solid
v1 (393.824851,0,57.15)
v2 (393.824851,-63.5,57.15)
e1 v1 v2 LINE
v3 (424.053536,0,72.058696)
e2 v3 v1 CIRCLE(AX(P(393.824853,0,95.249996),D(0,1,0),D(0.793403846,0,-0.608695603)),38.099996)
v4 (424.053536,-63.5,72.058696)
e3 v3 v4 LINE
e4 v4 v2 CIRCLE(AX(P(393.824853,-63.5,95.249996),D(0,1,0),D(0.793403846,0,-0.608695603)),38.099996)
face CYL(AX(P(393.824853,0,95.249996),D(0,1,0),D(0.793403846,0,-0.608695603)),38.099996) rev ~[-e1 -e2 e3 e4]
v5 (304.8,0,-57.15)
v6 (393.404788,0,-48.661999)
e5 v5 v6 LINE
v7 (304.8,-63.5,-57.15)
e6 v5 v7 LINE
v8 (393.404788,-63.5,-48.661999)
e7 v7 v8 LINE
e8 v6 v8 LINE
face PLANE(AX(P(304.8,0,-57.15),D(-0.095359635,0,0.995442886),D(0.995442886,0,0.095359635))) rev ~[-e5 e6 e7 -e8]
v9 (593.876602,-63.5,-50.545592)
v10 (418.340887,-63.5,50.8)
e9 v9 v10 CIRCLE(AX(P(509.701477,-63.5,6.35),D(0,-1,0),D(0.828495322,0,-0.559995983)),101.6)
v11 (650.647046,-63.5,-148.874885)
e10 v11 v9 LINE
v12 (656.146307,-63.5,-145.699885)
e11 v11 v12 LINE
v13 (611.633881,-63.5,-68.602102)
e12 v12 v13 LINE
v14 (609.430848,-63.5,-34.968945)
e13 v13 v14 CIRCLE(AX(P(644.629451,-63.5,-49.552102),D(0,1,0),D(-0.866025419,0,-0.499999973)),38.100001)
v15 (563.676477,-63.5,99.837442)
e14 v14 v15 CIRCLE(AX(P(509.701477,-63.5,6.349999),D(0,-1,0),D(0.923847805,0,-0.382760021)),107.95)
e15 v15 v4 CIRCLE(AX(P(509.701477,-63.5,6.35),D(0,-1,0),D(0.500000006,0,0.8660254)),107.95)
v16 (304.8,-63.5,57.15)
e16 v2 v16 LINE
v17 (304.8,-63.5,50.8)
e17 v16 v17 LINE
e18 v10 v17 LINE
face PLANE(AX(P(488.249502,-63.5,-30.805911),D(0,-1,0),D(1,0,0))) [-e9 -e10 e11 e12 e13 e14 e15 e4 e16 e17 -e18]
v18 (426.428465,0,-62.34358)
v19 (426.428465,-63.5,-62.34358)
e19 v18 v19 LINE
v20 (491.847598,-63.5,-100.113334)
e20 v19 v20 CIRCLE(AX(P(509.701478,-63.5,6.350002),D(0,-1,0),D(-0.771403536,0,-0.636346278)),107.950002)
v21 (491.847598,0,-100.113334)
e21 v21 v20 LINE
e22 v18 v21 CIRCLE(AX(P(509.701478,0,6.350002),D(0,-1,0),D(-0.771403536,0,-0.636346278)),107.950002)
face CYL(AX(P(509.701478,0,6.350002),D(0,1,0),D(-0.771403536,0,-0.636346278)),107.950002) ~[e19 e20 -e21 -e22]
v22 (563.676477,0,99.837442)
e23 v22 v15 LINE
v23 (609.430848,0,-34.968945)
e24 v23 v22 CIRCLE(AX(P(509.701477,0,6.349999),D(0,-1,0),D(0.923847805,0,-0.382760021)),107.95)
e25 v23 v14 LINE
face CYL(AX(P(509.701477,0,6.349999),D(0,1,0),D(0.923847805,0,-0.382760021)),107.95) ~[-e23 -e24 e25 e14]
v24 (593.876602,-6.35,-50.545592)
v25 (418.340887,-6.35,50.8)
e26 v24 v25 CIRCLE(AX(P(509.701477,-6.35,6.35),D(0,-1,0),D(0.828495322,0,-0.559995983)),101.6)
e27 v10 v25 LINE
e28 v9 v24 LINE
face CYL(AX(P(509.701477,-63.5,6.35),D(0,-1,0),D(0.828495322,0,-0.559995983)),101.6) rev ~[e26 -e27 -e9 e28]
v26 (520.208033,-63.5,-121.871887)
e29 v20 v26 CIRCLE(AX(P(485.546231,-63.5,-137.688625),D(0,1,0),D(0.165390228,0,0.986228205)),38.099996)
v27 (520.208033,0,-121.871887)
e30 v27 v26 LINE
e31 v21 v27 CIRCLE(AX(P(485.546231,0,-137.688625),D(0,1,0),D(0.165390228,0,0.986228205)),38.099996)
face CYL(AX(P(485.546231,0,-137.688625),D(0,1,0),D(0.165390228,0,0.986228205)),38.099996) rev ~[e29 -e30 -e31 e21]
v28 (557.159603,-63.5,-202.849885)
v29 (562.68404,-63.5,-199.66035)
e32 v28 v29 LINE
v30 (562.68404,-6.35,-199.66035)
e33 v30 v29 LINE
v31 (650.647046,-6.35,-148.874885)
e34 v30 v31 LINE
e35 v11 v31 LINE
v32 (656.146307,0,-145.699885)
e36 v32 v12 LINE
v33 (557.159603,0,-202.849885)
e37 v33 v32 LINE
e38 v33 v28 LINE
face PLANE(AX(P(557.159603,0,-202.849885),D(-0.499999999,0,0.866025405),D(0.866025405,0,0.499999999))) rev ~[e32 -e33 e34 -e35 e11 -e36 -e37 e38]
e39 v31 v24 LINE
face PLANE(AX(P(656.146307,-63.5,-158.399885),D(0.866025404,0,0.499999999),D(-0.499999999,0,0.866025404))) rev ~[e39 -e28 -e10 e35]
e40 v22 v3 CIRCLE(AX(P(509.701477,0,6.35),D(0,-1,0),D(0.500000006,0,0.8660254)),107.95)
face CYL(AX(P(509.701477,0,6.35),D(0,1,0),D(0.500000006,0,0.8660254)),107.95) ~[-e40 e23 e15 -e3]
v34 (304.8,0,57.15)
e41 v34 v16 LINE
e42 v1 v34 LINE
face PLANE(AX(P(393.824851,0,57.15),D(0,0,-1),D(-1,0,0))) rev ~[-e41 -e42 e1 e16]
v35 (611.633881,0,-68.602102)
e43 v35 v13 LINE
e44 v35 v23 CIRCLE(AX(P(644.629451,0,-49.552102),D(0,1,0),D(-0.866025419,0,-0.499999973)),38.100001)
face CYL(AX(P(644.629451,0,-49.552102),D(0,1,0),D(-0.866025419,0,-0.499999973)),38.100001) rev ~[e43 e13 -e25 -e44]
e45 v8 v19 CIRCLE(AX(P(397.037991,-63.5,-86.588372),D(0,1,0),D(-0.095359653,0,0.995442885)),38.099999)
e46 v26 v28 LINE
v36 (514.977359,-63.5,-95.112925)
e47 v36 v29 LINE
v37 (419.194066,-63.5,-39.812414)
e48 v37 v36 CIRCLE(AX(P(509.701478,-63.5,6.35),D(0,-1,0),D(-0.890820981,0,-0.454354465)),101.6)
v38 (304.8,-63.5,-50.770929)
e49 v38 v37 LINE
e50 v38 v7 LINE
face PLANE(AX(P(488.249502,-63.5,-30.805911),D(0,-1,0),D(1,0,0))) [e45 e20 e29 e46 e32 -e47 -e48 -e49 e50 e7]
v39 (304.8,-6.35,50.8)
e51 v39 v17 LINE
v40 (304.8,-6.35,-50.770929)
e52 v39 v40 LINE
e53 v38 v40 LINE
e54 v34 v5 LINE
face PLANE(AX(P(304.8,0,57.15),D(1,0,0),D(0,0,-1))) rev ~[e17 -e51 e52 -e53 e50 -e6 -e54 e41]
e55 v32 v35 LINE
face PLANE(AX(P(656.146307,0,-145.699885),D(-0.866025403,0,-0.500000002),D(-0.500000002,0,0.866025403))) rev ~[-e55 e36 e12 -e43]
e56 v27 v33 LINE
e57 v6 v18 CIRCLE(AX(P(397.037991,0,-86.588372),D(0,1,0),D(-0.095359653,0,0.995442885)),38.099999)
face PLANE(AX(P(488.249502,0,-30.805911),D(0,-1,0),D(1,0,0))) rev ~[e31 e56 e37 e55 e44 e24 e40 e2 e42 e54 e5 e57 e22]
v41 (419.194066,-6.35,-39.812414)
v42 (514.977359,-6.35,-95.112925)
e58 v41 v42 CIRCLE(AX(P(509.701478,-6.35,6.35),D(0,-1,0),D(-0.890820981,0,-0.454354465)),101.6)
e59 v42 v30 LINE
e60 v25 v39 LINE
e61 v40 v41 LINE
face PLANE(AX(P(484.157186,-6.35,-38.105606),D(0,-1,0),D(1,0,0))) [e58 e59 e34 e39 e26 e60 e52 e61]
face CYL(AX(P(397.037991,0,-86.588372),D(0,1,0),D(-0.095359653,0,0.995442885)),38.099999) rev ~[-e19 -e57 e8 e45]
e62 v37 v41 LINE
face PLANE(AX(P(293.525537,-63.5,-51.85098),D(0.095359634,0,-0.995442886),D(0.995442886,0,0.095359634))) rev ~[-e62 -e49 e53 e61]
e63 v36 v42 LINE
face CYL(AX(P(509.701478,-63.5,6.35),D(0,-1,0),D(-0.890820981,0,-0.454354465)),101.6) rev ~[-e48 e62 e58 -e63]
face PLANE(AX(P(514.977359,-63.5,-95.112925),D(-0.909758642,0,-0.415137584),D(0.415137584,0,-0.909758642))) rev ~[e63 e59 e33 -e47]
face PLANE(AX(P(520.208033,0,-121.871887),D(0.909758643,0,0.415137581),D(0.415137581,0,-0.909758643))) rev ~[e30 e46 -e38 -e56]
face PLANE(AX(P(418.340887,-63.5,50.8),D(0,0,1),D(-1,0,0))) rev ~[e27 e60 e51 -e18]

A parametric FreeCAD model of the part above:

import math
import FreeCAD as App
import Part
import Sketcher

V = App.Vector
Q = App.Units.Quantity

doc = App.newDocument("Part")
params = doc.addObject("Spreadsheet::Sheet", "Params")
for row, (alias, value) in enumerate([
    ("sketch1_radius", "1.5 in"),
    ("sketch1_radius2", "1.4999999 in"),
    ("sketch1_radius3", "1.5000001 in"),
    ("sketch1_radius4", "4.2500001 in"),
    ("sketch1_radius5", "4.25 in"),
    ("pad1_length", "2.5 in"),
    ("sketch2_radius", "4 in"),
    ("pad2_length", "2.25 in"),
], start=1):
    params.set(f"A{row}", alias)
    params.set(f"B{row}", "=" + value)
    params.setAlias(f"B{row}", alias)

body = doc.addObject("PartDesign::Body", "Body")

sketch1 = body.newObject("Sketcher::SketchObject", "Sketch")
sketch1.AttachmentSupport = (doc.getObject("XZ_Plane"), [""])
sketch1.MapMode = "FlatFace"
sketch1.addGeometry([
    Part.LineSegment(V(394, 57, 0), V(305, 57, 0)),
    Part.LineSegment(V(305, 57, 0), V(305, -57, 0)),
    Part.LineSegment(V(305, -57, 0), V(393, -49, 0)),
    Part.ArcOfCircle(Part.Circle(V(397, -87, 0), V(0, 0, 1), 38), math.radians(40), math.radians(95)),
    Part.ArcOfCircle(Part.Circle(V(510, 6, 0), V(0, 0, 1), 108), math.radians(-140), math.radians(-100)),
    Part.ArcOfCircle(Part.Circle(V(486, -138, 0), V(0, 0, 1), 38), math.radians(25), math.radians(80)),
    Part.LineSegment(V(520, -122, 0), V(557, -203, 0)),
    Part.LineSegment(V(557, -203, 0), V(656, -146, 0)),
    Part.LineSegment(V(656, -146, 0), V(612, -69, 0)),
    Part.ArcOfCircle(Part.Circle(V(645, -50, 0), V(0, 0, 1), 38), math.radians(157), math.radians(210)),
    Part.ArcOfCircle(Part.Circle(V(510, 6, 0), V(0, 0, 1), 108), math.radians(-23), math.radians(60)),
    Part.ArcOfCircle(Part.Circle(V(510, 6, 0), V(0, 0, 1), 108), math.radians(60), math.radians(143)),
    Part.ArcOfCircle(Part.Circle(V(394, 95, 0), V(0, 0, 1), 38), math.radians(-90), math.radians(-37)),
], False)
sketch1.addConstraint([
    Sketcher.Constraint("Coincident", 0, 2, 1, 1),
    Sketcher.Constraint("Coincident", 1, 2, 2, 1),
    Sketcher.Constraint("Tangent", 2, 2, 3, 2),
    Sketcher.Constraint("Tangent", 3, 1, 4, 1),
    Sketcher.Constraint("Tangent", 4, 2, 5, 2),
    Sketcher.Constraint("Tangent", 5, 1, 6, 1),
    Sketcher.Constraint("Coincident", 6, 2, 7, 1),
    Sketcher.Constraint("Coincident", 7, 2, 8, 1),
    Sketcher.Constraint("Tangent", 8, 2, 9, 2),
    Sketcher.Constraint("Tangent", 9, 1, 10, 1),
    Sketcher.Constraint("Tangent", 10, 2, 11, 1),
    Sketcher.Constraint("Tangent", 11, 2, 12, 2),
    Sketcher.Constraint("Tangent", 12, 1, 0, 1),
    Sketcher.Constraint("Horizontal", 0),
    Sketcher.Constraint("Vertical", 1),
    Sketcher.Constraint("Coincident", 10, 3, 4, 3),
    Sketcher.Constraint("Equal", 10, 11),
    Sketcher.Constraint("Equal", 5, 12),
    Sketcher.Constraint("Perpendicular", 7, 8),
    Sketcher.Constraint("Equal", 2, 6),
    Sketcher.Constraint("Radius", 3, Q("1.5 in")),
    Sketcher.Constraint("Radius", 5, Q("1.4999999 in")),
    Sketcher.Constraint("Radius", 9, Q("1.5000001 in")),
    Sketcher.Constraint("Radius", 4, Q("4.2500001 in")),
    Sketcher.Constraint("Radius", 10, Q("4.25 in")),
    Sketcher.Constraint("DistanceY", 1, 2, 1, 1, Q("4.5 in")),
    Sketcher.Constraint("DistanceX", -1, 1, 0, 2, Q("12 in")),
    Sketcher.Constraint("Angle", 7, Q("30 deg")),
    Sketcher.Constraint("DistanceY", 11, 3, 0, 2, Q("2 in")),
    Sketcher.Constraint("Distance", 7, Q("4.5 in")),
    Sketcher.Constraint("DistanceY", -1, 1, 4, 3, Q("0.2500001 in")),
    Sketcher.Constraint("DistanceX", 4, 3, 10, 2, Q("2.1249999 in")),
    Sketcher.Constraint("DistanceX", 0, 2, 0, 1, Q("89.024851 mm")),
    Sketcher.Constraint("DistanceY", 2, 2, -1, 1, Q("48.661999 mm")),
    Sketcher.Constraint("DistanceY", 9, 3, 10, 3, Q("55.902102 mm")),
    Sketcher.Constraint("DistanceY", 6, 2, 5, 1, Q("80.977998 mm")),
])
sketch1.setExpression("Constraints[20]", "Params.sketch1_radius")
sketch1.setExpression("Constraints[21]", "Params.sketch1_radius2")
sketch1.setExpression("Constraints[22]", "Params.sketch1_radius3")
sketch1.setExpression("Constraints[23]", "Params.sketch1_radius4")
sketch1.setExpression("Constraints[24]", "Params.sketch1_radius5")
pad1 = body.newObject("PartDesign::Pad", "Pad")
pad1.Profile = sketch1
pad1.setExpression("Length", "Params.pad1_length")
body2 = doc.addObject("PartDesign::Body", "Body001")

sketch2 = body2.newObject("Sketcher::SketchObject", "Sketch001")
sketch2.AttachmentSupport = (doc.getObject("XZ_Plane001"), [""])
sketch2.MapMode = "FlatFace"
sketch2.AttachmentOffset = App.Placement(V(0, 0, 2.5 * 25.4), App.Rotation())
sketch2.addGeometry([
    Part.LineSegment(V(294, -52, 0), V(419, -40, 0)),
    Part.ArcOfCircle(Part.Circle(V(510, 6, 0), V(0, 0, 1), 102), math.radians(-153), math.radians(-87)),
    Part.LineSegment(V(515, -95, 0), V(570, -216, 0)),
    Part.LineSegment(V(570, -216, 0), V(656, -158, 0)),
    Part.LineSegment(V(656, -158, 0), V(594, -51, 0)),
    Part.ArcOfCircle(Part.Circle(V(510, 6, 0), V(0, 0, 1), 102), math.radians(-34), math.radians(154)),
    Part.LineSegment(V(418, 51, 0), V(288, 51, 0)),
    Part.LineSegment(V(288, 51, 0), V(294, -52, 0)),
], False)
sketch2.addConstraint([
    Sketcher.Constraint("Coincident", 0, 2, 1, 1),
    Sketcher.Constraint("Coincident", 1, 2, 2, 1),
    Sketcher.Constraint("Coincident", 2, 2, 3, 1),
    Sketcher.Constraint("Coincident", 3, 2, 4, 1),
    Sketcher.Constraint("Coincident", 4, 2, 5, 1),
    Sketcher.Constraint("Coincident", 5, 2, 6, 1),
    Sketcher.Constraint("Coincident", 6, 2, 7, 1),
    Sketcher.Constraint("Coincident", 7, 2, 0, 1),
    Sketcher.Constraint("Horizontal", 6),
    Sketcher.Constraint("Coincident", 5, 3, 1, 3),
    Sketcher.Constraint("Equal", 1, 5),
    Sketcher.Constraint("Radius", 1, Q("4 in")),
    Sketcher.Constraint("DistanceY", -1, 1, 5, 2, Q("2 in")),
    Sketcher.Constraint("Angle", 4, Q("120 deg")),
    Sketcher.Constraint("DistanceY", -1, 1, 1, 3, Q("0.25 in")),
    Sketcher.Constraint("DistanceX", 6, 2, 6, 1, Q("130.221452 mm")),
    Sketcher.Constraint("DistanceX", -1, 1, 4, 2, Q("593.876602 mm")),
    Sketcher.Constraint("DistanceX", 6, 2, 7, 2, Q("5.406102 mm")),
    Sketcher.Constraint("Distance", 3, Q("103.580958 mm")),
    Sketcher.Constraint("Distance", 4, Q("124.53941 mm")),
    Sketcher.Constraint("DistanceX", -1, 1, 1, 2, Q("514.977359 mm")),
    Sketcher.Constraint("DistanceX", -1, 1, 2, 2, Q("570.314071 mm")),
    Sketcher.Constraint("DistanceY", 2, 2, -1, 1, Q("216.38128 mm")),
    Sketcher.Constraint("DistanceY", 7, 2, -1, 1, Q("51.85098 mm")),
    Sketcher.Constraint("DistanceX", 0, 2, 5, 3, Q("90.507411 mm")),
])
sketch2.setExpression("Constraints[11]", "Params.sketch2_radius")
pad2 = body2.newObject("PartDesign::Pad", "Pad001")
pad2.Profile = sketch2
pad2.setExpression("Length", "Params.pad2_length")
pad2.Reversed = True
doc.recompute()

boolean = body.newObject("PartDesign::Boolean", "Boolean")
boolean.Type = "Cut"
boolean.addObjects([body2])

doc.recompute()
